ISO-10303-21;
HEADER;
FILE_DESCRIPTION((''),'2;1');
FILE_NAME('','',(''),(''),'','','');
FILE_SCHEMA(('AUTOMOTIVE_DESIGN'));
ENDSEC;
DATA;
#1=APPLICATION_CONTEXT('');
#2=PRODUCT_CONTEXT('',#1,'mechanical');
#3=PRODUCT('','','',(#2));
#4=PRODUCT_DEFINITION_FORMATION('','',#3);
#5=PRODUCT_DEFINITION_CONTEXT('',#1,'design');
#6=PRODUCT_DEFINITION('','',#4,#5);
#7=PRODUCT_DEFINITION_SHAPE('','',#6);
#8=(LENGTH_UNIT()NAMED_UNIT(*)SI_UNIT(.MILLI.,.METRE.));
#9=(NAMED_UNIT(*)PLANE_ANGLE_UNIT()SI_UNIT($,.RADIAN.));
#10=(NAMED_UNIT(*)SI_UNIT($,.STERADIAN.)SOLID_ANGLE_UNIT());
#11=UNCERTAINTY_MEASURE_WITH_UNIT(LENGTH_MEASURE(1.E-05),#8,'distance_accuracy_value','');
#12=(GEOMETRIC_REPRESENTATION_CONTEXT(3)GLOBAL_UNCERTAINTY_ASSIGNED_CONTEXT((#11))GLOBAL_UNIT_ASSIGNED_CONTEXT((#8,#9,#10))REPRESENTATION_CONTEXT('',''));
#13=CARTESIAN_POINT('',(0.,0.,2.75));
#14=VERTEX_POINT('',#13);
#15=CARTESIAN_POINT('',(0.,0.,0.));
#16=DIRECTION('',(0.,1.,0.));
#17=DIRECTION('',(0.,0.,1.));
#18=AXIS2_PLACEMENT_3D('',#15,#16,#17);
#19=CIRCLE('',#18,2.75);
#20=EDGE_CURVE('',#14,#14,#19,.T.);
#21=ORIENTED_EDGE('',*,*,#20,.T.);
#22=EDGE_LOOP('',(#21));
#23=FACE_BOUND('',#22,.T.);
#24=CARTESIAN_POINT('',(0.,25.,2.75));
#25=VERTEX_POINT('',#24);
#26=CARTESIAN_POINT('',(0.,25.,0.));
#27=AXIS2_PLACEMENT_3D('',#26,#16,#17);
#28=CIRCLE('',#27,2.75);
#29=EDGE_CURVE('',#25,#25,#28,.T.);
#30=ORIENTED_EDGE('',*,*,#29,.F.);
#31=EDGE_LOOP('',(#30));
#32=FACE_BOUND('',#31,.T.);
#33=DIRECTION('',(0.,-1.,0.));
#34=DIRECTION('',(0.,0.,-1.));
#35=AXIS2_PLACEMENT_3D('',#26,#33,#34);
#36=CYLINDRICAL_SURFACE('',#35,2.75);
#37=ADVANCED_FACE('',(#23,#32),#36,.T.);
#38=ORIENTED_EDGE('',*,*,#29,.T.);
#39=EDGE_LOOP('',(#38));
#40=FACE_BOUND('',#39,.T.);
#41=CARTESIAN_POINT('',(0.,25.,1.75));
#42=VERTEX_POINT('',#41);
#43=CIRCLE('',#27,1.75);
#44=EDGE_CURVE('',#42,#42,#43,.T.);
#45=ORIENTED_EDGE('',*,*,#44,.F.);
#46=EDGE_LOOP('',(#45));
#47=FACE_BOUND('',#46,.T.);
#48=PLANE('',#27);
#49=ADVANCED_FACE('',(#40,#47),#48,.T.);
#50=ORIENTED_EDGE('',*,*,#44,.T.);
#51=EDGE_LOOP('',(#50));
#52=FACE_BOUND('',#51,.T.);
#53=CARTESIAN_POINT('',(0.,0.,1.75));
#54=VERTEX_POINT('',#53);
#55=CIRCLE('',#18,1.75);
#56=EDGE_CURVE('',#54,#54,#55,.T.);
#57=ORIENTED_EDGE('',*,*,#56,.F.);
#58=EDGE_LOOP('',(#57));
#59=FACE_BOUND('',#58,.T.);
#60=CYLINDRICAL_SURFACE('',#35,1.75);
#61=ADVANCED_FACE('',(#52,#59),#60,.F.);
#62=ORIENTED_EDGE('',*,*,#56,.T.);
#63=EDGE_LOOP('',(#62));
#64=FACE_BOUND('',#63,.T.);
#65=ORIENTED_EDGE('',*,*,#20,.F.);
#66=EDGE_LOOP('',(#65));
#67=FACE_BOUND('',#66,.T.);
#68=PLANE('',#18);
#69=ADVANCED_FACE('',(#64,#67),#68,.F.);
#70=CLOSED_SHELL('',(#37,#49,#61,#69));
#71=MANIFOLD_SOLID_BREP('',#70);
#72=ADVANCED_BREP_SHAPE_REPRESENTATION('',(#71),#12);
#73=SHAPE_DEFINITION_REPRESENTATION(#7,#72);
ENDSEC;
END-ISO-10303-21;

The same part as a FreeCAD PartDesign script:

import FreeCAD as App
import Part
import Sketcher
from FreeCAD import Vector
Q = App.Units.Quantity

doc = App.newDocument("Part")
body = doc.addObject("PartDesign::Body", "Body")

# Sketch on XZ plane
sketch1 = doc.addObject("Sketcher::SketchObject", "Sketch")
body.addObject(sketch1)
sketch1.AttachmentSupport = (doc.XZ_Plane, [""])
sketch1.MapMode = "FlatFace"
sketch1.addGeometry([
    Part.Circle(Vector(0, 0, 0), Vector(0, 0, 1), 2.75),
    Part.Circle(Vector(0, 0, 0), Vector(0, 0, 1), 1.75),
], False)
sketch1.addConstraint([
    Sketcher.Constraint("Coincident", 0, 3, -1, 1),
    Sketcher.Constraint("Coincident", 1, 3, -1, 1),
    Sketcher.Constraint("Diameter", 0, Q("5.5 mm")),
    Sketcher.Constraint("Diameter", 1, Q("3.5 mm")),
])
pad1 = doc.addObject("PartDesign::Pad", "Pad")
body.addObject(pad1)
pad1.Profile = sketch1
pad1.Length = 25
pad1.Reversed = True

doc.recompute()
